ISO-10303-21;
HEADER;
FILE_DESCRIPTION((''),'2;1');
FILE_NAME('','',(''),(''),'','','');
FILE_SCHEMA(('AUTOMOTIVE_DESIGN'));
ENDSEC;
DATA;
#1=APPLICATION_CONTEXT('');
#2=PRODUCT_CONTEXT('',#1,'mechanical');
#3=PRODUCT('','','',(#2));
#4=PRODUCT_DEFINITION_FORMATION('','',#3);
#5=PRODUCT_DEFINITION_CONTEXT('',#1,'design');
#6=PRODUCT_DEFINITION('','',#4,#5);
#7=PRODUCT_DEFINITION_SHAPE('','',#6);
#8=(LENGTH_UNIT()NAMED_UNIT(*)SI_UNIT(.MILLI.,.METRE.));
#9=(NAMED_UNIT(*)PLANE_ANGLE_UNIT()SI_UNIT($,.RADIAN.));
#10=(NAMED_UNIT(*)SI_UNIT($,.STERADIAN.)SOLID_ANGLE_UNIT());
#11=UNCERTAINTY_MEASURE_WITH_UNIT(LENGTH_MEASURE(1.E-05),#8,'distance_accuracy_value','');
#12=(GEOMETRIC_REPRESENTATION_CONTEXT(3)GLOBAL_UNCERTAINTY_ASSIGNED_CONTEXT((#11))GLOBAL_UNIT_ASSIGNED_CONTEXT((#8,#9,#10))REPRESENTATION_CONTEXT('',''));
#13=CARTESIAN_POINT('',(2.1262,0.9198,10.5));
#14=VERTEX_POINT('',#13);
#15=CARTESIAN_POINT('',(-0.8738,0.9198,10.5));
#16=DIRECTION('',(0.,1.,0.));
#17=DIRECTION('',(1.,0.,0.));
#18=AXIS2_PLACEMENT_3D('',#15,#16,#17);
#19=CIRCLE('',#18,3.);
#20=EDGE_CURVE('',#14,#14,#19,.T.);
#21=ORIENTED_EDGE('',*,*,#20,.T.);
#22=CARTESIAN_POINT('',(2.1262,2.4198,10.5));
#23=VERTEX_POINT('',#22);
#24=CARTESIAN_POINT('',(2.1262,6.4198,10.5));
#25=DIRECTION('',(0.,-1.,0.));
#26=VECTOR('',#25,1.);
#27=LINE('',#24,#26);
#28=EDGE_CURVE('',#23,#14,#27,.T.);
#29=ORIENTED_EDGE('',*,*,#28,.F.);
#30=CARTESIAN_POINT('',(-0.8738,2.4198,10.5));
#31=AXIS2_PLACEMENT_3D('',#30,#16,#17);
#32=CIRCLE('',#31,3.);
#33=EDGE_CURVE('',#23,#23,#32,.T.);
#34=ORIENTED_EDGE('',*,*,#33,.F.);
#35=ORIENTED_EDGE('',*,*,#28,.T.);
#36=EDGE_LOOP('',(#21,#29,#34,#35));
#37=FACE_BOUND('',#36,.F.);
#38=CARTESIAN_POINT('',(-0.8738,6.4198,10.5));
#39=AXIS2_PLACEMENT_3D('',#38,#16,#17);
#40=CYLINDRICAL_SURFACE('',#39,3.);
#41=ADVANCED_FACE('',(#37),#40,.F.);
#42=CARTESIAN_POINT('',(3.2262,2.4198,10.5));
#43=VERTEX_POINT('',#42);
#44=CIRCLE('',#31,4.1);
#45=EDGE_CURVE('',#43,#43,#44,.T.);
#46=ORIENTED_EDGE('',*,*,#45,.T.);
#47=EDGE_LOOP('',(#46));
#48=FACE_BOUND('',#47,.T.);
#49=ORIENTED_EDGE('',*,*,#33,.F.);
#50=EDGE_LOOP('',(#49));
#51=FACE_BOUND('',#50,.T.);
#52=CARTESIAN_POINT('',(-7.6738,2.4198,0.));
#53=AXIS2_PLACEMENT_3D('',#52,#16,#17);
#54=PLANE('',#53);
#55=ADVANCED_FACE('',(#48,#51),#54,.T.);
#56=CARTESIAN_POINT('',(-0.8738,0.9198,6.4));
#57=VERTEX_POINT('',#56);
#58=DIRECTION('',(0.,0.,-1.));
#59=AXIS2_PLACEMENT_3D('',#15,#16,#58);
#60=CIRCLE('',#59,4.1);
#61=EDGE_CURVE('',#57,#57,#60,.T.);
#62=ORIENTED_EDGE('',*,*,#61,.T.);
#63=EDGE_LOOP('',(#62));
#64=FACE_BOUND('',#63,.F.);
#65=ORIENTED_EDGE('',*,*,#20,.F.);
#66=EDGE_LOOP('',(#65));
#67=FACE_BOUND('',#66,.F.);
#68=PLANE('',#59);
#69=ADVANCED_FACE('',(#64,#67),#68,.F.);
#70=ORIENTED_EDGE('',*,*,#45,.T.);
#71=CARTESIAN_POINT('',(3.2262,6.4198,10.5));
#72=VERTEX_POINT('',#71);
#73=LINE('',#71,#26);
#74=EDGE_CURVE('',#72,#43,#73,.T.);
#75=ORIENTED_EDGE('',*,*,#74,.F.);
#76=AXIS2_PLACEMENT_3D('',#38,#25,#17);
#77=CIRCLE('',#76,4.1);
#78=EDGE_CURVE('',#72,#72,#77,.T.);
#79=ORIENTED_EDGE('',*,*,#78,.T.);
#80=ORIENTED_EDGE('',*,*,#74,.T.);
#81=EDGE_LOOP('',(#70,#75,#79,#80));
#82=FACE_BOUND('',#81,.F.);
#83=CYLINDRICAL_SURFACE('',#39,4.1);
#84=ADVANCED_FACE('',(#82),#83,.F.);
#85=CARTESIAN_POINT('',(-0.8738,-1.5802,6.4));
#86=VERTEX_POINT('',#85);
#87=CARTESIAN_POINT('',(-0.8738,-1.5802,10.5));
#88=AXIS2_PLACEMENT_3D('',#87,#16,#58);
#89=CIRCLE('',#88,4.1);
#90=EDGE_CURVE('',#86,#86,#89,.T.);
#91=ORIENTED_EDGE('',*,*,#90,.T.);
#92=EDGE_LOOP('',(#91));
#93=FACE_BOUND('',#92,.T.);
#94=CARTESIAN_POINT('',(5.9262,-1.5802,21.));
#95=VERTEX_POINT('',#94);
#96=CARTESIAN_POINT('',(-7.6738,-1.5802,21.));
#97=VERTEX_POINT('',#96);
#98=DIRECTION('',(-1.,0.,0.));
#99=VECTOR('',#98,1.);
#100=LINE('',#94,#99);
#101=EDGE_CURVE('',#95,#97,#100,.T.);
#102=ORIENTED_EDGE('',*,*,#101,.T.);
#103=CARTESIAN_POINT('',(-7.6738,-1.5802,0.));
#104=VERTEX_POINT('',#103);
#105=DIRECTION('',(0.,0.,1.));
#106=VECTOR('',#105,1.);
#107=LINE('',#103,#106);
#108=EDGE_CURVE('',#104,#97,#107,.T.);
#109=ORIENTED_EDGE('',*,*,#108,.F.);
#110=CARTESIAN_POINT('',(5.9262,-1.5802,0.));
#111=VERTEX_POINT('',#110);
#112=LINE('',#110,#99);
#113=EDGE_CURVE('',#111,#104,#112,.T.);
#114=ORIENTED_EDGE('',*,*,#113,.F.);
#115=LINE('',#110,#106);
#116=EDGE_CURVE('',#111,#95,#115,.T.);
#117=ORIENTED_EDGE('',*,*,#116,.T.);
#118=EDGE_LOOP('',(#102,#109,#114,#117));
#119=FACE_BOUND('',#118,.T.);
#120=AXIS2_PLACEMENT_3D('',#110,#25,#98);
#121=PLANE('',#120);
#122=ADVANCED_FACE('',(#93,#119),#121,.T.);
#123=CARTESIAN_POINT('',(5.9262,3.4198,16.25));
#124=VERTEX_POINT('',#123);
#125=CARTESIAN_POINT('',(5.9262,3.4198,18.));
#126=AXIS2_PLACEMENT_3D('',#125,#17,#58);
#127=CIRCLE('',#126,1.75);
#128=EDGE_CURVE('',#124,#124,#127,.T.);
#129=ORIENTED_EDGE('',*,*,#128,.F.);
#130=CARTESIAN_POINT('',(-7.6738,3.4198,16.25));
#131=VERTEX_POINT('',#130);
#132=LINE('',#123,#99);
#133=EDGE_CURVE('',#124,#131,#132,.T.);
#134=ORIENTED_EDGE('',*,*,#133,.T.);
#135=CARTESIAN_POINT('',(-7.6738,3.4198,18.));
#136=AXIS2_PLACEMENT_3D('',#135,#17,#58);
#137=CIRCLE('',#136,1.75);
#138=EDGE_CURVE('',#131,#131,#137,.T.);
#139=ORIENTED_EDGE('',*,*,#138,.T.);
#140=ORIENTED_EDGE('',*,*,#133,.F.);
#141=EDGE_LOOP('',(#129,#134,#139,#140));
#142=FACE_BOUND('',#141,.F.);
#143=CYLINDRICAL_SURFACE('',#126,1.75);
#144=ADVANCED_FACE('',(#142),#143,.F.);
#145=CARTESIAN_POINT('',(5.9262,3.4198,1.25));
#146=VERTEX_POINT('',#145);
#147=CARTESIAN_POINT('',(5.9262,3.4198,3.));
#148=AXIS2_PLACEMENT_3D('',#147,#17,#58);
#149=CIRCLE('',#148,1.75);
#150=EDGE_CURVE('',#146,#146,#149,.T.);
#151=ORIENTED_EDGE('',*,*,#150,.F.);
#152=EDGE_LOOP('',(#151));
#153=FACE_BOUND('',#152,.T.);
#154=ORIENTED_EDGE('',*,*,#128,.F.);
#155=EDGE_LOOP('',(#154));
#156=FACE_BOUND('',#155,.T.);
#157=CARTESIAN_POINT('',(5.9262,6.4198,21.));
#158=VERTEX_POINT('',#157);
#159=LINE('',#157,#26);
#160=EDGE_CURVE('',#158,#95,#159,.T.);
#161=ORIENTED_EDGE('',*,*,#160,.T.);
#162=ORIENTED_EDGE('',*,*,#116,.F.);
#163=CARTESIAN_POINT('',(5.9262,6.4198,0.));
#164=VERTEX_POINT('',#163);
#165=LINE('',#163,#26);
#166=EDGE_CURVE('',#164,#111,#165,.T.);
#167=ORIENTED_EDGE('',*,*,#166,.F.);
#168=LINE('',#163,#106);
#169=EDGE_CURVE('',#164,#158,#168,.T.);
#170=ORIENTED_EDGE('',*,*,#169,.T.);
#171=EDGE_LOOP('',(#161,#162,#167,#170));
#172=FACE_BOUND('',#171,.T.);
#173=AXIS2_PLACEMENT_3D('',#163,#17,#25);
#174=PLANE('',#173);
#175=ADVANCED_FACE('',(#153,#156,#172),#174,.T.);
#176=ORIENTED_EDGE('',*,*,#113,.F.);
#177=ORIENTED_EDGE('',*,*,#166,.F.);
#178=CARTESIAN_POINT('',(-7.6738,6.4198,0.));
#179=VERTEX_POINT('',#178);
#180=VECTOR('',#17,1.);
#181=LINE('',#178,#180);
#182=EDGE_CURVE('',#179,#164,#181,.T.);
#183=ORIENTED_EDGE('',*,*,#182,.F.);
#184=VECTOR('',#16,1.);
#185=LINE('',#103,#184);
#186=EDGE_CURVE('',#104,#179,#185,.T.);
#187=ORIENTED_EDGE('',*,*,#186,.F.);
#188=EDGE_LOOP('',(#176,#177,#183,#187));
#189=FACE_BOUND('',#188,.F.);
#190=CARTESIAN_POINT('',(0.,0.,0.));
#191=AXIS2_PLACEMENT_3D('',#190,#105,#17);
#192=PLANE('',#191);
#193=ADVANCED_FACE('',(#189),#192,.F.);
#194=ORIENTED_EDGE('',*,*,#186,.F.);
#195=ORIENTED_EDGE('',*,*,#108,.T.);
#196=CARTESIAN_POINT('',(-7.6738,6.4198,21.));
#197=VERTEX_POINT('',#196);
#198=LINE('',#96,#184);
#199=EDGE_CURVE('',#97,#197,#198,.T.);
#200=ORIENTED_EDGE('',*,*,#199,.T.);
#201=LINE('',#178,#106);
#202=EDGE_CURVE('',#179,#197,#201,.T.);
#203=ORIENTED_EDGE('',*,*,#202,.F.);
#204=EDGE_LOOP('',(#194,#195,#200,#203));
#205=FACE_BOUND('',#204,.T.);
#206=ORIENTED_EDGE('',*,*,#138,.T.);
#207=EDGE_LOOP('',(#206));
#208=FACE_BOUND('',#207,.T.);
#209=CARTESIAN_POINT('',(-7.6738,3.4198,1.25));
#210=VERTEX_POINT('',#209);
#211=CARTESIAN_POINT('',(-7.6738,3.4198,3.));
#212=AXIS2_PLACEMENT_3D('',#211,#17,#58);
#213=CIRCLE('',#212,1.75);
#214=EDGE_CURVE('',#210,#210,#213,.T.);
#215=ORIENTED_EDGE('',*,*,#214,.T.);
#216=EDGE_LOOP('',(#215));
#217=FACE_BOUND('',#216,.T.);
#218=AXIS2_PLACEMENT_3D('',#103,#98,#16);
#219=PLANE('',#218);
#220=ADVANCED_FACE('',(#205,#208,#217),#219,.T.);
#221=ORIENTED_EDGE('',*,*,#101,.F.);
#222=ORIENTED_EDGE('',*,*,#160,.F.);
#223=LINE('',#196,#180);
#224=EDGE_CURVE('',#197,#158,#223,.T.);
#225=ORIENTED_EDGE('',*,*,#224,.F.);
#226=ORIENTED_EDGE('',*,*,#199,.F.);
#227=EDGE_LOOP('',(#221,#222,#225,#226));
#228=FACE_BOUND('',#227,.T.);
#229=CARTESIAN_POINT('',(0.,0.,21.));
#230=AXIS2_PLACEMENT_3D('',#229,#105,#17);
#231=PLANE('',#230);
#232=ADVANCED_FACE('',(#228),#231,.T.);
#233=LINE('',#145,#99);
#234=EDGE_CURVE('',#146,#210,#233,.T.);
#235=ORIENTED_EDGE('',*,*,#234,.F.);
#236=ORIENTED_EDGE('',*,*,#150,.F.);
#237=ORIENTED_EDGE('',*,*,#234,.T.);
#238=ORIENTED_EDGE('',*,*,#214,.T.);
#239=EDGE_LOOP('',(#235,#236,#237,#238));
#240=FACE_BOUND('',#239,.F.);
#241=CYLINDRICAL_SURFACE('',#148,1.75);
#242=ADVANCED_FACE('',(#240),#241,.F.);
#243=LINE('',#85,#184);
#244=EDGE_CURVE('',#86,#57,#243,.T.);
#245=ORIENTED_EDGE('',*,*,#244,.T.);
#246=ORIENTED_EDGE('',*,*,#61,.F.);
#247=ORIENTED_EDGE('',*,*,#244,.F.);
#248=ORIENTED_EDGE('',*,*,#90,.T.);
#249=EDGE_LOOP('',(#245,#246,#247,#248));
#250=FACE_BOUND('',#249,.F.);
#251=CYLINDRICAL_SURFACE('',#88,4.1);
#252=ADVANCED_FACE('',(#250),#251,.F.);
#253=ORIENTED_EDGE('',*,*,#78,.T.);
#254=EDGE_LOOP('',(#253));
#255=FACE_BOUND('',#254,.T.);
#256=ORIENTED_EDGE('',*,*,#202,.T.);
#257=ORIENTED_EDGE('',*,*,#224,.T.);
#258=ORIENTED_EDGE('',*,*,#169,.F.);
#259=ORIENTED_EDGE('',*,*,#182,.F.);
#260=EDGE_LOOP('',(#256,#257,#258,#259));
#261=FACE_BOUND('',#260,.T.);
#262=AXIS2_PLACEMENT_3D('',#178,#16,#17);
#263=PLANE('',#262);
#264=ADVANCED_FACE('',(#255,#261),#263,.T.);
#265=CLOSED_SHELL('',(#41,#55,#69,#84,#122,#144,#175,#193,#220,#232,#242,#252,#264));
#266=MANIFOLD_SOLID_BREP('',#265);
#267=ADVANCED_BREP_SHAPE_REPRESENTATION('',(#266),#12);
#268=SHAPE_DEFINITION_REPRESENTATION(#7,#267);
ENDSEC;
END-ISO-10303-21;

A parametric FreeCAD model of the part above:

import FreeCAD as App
import Part
import Sketcher
from FreeCAD import Vector
Q = App.Units.Quantity

doc = App.newDocument("Part")
body = doc.addObject("PartDesign::Body", "Body")

# Sketch on XY plane
sketch1 = doc.addObject("Sketcher::SketchObject", "Sketch")
body.addObject(sketch1)
sketch1.AttachmentSupport = (doc.XY_Plane, [""])
sketch1.MapMode = "FlatFace"
sketch1.addGeometry(Part.LineSegment(Vector(5.9262, 6.4198, 0), Vector(-7.6738, 6.4198, 0)), False)
sketch1.addGeometry(Part.LineSegment(Vector(-7.6738, 6.4198, 0), Vector(-7.6738, -1.5802, 0)), False)
sketch1.addGeometry(Part.LineSegment(Vector(-7.6738, -1.5802, 0), Vector(5.9262, -1.5802, 0)), False)
sketch1.addGeometry(Part.LineSegment(Vector(5.9262, -1.5802, 0), Vector(5.9262, 6.4198, 0)), False)
sketch1.addConstraint(Sketcher.Constraint("Coincident", 0, 2, 1, 1))
sketch1.addConstraint(Sketcher.Constraint("Coincident", 1, 2, 2, 1))
sketch1.addConstraint(Sketcher.Constraint("Coincident", 2, 2, 3, 1))
sketch1.addConstraint(Sketcher.Constraint("Coincident", 3, 2, 0, 1))
sketch1.addConstraint(Sketcher.Constraint("Horizontal", 0))
sketch1.addConstraint(Sketcher.Constraint("Vertical", 1))
sketch1.addConstraint(Sketcher.Constraint("Horizontal", 2))
sketch1.addConstraint(Sketcher.Constraint("Vertical", 3))
sketch1.addConstraint(Sketcher.Constraint("DistanceY", 1, 2, 1, 1, Q("8 mm")))
sketch1.addConstraint(Sketcher.Constraint("DistanceX", 0, 2, 0, 1, Q("13.6 mm")))
sketch1.addConstraint(Sketcher.Constraint("DistanceX", 0, 2, -1, 1, Q("7.6738 mm")))
sketch1.addConstraint(Sketcher.Constraint("DistanceY", -1, 1, 0, 2, Q("6.4198 mm")))
pad1 = doc.addObject("PartDesign::Pad", "Pad")
body.addObject(pad1)
pad1.Profile = sketch1
pad1.Length = 21

# Sketch on YZ plane
sketch2 = doc.addObject("Sketcher::SketchObject", "Sketch001")
body.addObject(sketch2)
sketch2.AttachmentSupport = (doc.YZ_Plane, [""])
sketch2.MapMode = "FlatFace"
sketch2.AttachmentOffset = App.Placement(Vector(0, 0, 5.9262), App.Rotation())
sketch2.addGeometry(Part.Circle(Vector(3.4198, 18, 0), Vector(0, 0, 1), 1.75), False)
sketch2.addGeometry(Part.Circle(Vector(3.4198, 3, 0), Vector(0, 0, 1), 1.75), False)
sketch2.addConstraint(Sketcher.Constraint("Equal", 0, 1))
sketch2.addConstraint(Sketcher.Constraint("Vertical", 0, 3, 1, 3))
sketch2.addConstraint(Sketcher.Constraint("Diameter", 0, Q("3.5 mm")))
sketch2.addConstraint(Sketcher.Constraint("DistanceY", -1, 1, 1, 3, Q("3 mm")))
sketch2.addConstraint(Sketcher.Constraint("DistanceY", 1, 3, 0, 3, Q("15 mm")))
sketch2.addConstraint(Sketcher.Constraint("DistanceX", -1, 1, 0, 3, Q("3.4198 mm")))
pocket1 = doc.addObject("PartDesign::Pocket", "Pocket")
body.addObject(pocket1)
pocket1.Profile = sketch2
pocket1.Type = "ThroughAll"

# Sketch on XZ plane
sketch3 = doc.addObject("Sketcher::SketchObject", "Sketch002")
body.addObject(sketch3)
sketch3.AttachmentSupport = (doc.XZ_Plane, [""])
sketch3.MapMode = "FlatFace"
sketch3.AttachmentOffset = App.Placement(Vector(0, 0, -6.4198), App.Rotation())
sketch3.addGeometry(Part.Circle(Vector(-0.8738, 10.5, 0), Vector(0, 0, 1), 4.1), False)
sketch3.addGeometry(Part.Circle(Vector(-0.8738, 10.5, 0), Vector(0, 0, 1), 3), False)
sketch3.addConstraint(Sketcher.Constraint("Coincident", 1, 3, 0, 3))
sketch3.addConstraint(Sketcher.Constraint("Diameter", 1, Q("6 mm")))
sketch3.addConstraint(Sketcher.Constraint("Diameter", 0, Q("8.2 mm")))
sketch3.addConstraint(Sketcher.Constraint("DistanceY", -1, 1, 0, 3, Q("10.5 mm")))
sketch3.addConstraint(Sketcher.Constraint("DistanceX", 0, 3, -1, 1, Q("0.8738 mm")))
pocket2 = doc.addObject("PartDesign::Pocket", "Pocket001")
body.addObject(pocket2)
pocket2.Profile = sketch3
pocket2.Length = 4
pocket2.Reversed = True

# Sketch on XZ plane
sketch4 = doc.addObject("Sketcher::SketchObject", "Sketch003")
body.addObject(sketch4)
sketch4.AttachmentSupport = (doc.XZ_Plane, [""])
sketch4.MapMode = "FlatFace"
sketch4.AttachmentOffset = App.Placement(Vector(0, 0, -6.4198), App.Rotation())
sketch4.addGeometry(Part.Circle(Vector(-0.8738, 10.5, 0), Vector(0, 0, 1), 3), False)
sketch4.addConstraint(Sketcher.Constraint("Diameter", 0, Q("6 mm")))
sketch4.addConstraint(Sketcher.Constraint("DistanceY", -1, 1, 0, 3, Q("10.5 mm")))
sketch4.addConstraint(Sketcher.Constraint("DistanceX", 0, 3, -1, 1, Q("0.8738 mm")))
pocket3 = doc.addObject("PartDesign::Pocket", "Pocket002")
body.addObject(pocket3)
pocket3.Profile = sketch4
pocket3.Length = 8
pocket3.Reversed = True

# Sketch on XZ plane
sketch5 = doc.addObject("Sketcher::SketchObject", "Sketch004")
body.addObject(sketch5)
sketch5.AttachmentSupport = (doc.XZ_Plane, [""])
sketch5.MapMode = "FlatFace"
sketch5.AttachmentOffset = App.Placement(Vector(0, 0, 1.5802), App.Rotation())
sketch5.addGeometry(Part.Circle(Vector(-0.8738, 10.5, 0), Vector(0, 0, 1), 2), False)
sketch5.addConstraint(Sketcher.Constraint("Diameter", 0, Q("4 mm")))
sketch5.addConstraint(Sketcher.Constraint("DistanceY", -1, 1, 0, 3, Q("10.5 mm")))
sketch5.addConstraint(Sketcher.Constraint("DistanceX", 0, 3, -1, 1, Q("0.8738 mm")))
doc.recompute()
hole = doc.addObject("PartDesign::Hole", "Hole")
body.addObject(hole)
hole.Profile = sketch5
hole.ThreadType = "None"
hole.Diameter = 4
hole.DepthType = "ThroughAll"
hole.HoleCutType = "Counterbore"
hole.HoleCutDiameter = 8.2
hole.HoleCutDepth = 2.5

doc.recompute()
